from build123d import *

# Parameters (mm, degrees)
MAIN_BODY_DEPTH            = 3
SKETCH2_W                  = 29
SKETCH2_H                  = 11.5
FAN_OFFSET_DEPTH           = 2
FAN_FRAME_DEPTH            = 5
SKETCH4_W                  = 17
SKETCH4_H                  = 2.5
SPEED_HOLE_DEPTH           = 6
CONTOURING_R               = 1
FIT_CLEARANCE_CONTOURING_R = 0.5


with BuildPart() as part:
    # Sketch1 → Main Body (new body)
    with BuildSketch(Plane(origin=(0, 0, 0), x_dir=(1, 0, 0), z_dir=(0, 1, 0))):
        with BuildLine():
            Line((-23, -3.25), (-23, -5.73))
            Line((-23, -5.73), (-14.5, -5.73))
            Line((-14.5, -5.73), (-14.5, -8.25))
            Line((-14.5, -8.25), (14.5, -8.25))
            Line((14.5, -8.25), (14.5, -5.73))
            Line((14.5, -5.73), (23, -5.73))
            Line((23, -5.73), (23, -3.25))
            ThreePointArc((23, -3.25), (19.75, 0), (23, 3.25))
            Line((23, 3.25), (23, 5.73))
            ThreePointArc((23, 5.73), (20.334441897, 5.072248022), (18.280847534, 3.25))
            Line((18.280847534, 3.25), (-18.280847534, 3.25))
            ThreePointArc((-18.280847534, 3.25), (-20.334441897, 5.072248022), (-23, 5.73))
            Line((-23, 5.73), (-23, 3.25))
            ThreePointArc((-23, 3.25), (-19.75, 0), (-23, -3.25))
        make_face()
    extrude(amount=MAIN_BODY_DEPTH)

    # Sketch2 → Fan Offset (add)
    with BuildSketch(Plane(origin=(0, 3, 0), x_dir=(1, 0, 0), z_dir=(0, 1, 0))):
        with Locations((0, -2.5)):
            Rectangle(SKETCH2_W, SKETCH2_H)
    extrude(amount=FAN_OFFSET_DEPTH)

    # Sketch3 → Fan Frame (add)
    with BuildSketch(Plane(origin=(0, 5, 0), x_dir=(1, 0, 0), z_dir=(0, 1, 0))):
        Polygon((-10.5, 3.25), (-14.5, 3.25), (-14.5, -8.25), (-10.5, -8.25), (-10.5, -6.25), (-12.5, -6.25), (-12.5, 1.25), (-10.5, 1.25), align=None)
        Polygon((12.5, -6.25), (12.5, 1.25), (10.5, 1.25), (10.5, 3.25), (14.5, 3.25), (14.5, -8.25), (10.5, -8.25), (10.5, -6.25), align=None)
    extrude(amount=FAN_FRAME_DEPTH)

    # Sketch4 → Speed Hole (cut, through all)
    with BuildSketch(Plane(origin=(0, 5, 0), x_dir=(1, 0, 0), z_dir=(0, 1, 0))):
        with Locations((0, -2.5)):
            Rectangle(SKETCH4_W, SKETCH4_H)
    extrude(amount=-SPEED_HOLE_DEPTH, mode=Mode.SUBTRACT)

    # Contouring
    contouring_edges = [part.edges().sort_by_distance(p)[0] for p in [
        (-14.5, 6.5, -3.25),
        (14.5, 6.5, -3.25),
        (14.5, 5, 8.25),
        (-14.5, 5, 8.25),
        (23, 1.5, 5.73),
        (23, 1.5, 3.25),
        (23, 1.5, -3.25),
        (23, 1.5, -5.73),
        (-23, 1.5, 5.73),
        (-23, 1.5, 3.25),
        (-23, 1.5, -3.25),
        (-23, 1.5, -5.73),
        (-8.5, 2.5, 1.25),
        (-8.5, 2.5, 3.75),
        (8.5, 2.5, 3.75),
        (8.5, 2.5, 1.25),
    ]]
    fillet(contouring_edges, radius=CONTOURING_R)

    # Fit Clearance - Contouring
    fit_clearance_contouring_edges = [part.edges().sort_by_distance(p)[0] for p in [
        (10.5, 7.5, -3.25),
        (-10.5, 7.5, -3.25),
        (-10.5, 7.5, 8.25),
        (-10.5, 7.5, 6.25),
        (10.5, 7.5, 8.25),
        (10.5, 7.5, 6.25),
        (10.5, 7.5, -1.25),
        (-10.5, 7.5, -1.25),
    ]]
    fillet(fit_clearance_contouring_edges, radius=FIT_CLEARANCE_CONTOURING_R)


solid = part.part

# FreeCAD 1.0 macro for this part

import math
import FreeCAD as App
import Part
import Sketcher

V = App.Vector
Q = App.Units.Quantity


def edges_at(feature, points):
    """Names of the edges that pass closest to the given points."""
    edges = feature.Shape.Edges
    near = lambda p: min(range(len(edges)), key=lambda i: edges[i].distToShape(Part.Vertex(*p))[0])
    return sorted({f"Edge{near(p) + 1}" for p in points})

doc = App.newDocument("Part")
params = doc.addObject("Spreadsheet::Sheet", "Params")
for row, (alias, value) in enumerate([
    ("sketch1_width", "29 mm"),
    ("sketch1_radius", "3.25 mm"),
    ("sketch1_radius2", "5.73 mm"),
    ("sketch1_width2", "8.5 mm"),
    ("pad1_length", "3 mm"),
    ("sketch2_width", "29 mm"),
    ("sketch2_height", "11.5 mm"),
    ("pad2_length", "2 mm"),
    ("sketch3_width", "4 mm"),
    ("sketch3_width2", "2 mm"),
    ("sketch3_height", "11.5 mm"),
    ("pad3_length", "5 mm"),
    ("sketch4_width", "17 mm"),
    ("sketch4_height", "2.5 mm"),
    ("fillet_radius", "1 mm"),
    ("fillet2_radius", "0.5 mm"),
], start=1):
    params.set(f"A{row}", alias)
    params.set(f"B{row}", "=" + value)
    params.setAlias(f"B{row}", alias)

body = doc.addObject("PartDesign::Body", "Body")

# Sketch on XZ plane
sketch1 = body.newObject("Sketcher::SketchObject", "Sketch")
sketch1.AttachmentSupport = (doc.getObject("XZ_Plane"), [""])
sketch1.MapMode = "FlatFace"
sketch1.addGeometry([
    Part.LineSegment(V(-23, 3.2, 0), V(-23, 5.7, 0)),  # 0
    Part.LineSegment(V(-23, 5.7, 0), V(-14.5, 5.7, 0)),  # 1
    Part.LineSegment(V(-14.5, 5.7, 0), V(-14.5, 8.2, 0)),  # 2
    Part.LineSegment(V(-14.5, 8.2, 0), V(14.5, 8.2, 0)),  # 3
    Part.LineSegment(V(14.5, 8.2, 0), V(14.5, 5.7, 0)),  # 4
    Part.LineSegment(V(14.5, 5.7, 0), V(23, 5.7, 0)),  # 5
    Part.LineSegment(V(23, 5.7, 0), V(23, 3.2, 0)),  # 6
    Part.ArcOfCircle(Part.Circle(V(23, 0, 0), V(0, 0, 1), 3.2), math.radians(90), math.radians(270)),  # 7
    Part.LineSegment(V(23, -3.2, 0), V(23, -5.7, 0)),  # 8
    Part.ArcOfCircle(Part.Circle(V(23, 0, 0), V(0, 0, 1), 5.7), math.radians(-145), math.radians(-90)),  # 9
    Part.LineSegment(V(18.3, -3.2, 0), V(-18.3, -3.2, 0)),  # 10
    Part.ArcOfCircle(Part.Circle(V(-23, 0, 0), V(0, 0, 1), 5.7), math.radians(-90), math.radians(-35)),  # 11
    Part.LineSegment(V(-23, -5.7, 0), V(-23, -3.2, 0)),  # 12
    Part.ArcOfCircle(Part.Circle(V(-23, 0, 0), V(0, 0, 1), 3.2), math.radians(-90), math.radians(90)),  # 13
], False)
sketch1.addConstraint([
    Sketcher.Constraint("Coincident", 0, 2, 1, 1),
    Sketcher.Constraint("Coincident", 1, 2, 2, 1),
    Sketcher.Constraint("Coincident", 2, 2, 3, 1),
    Sketcher.Constraint("Coincident", 3, 2, 4, 1),
    Sketcher.Constraint("Coincident", 4, 2, 5, 1),
    Sketcher.Constraint("Coincident", 5, 2, 6, 1),
    Sketcher.Constraint("Coincident", 6, 2, 7, 1),
    Sketcher.Constraint("Coincident", 7, 2, 8, 1),
    Sketcher.Constraint("Coincident", 8, 2, 9, 2),
    Sketcher.Constraint("Coincident", 9, 1, 10, 1),
    Sketcher.Constraint("Coincident", 10, 2, 11, 2),
    Sketcher.Constraint("Coincident", 11, 1, 12, 1),
    Sketcher.Constraint("Coincident", 12, 2, 13, 1),
    Sketcher.Constraint("Coincident", 13, 2, 0, 1),
    Sketcher.Constraint("Vertical", 0),
    Sketcher.Constraint("Horizontal", 1),
    Sketcher.Constraint("Vertical", 2),
    Sketcher.Constraint("Horizontal", 3),
    Sketcher.Constraint("Vertical", 4),
    Sketcher.Constraint("Horizontal", 5),
    Sketcher.Constraint("Vertical", 6),
    Sketcher.Constraint("Vertical", 8),
    Sketcher.Constraint("Horizontal", 10),
    Sketcher.Constraint("Vertical", 12),
    Sketcher.Constraint("Coincident", 9, 3, 7, 3),
    Sketcher.Constraint("Coincident", 13, 3, 11, 3),
    Sketcher.Constraint("Equal", 9, 11),
    Sketcher.Constraint("Equal", 7, 13),
    Sketcher.Constraint("Symmetric", 7, 3, 11, 3, -1, 1),
    Sketcher.Constraint("Symmetric", 0, 2, 8, 2, -1, 1),
    Sketcher.Constraint("Symmetric", 5, 2, 11, 1, -1, 1),
    Sketcher.Constraint("Symmetric", 1, 2, 4, 2, -2),
    Sketcher.Constraint("Horizontal", 7, 2, 9, 1),
    Sketcher.Constraint("Vertical", 13, 3, 0, 2),
    Sketcher.Constraint("Vertical", 9, 3, 5, 2),
    Sketcher.Constraint("DistanceX", 3, 1, 3, 2, Q("29 mm")),
    Sketcher.Constraint("Radius", 7, Q("3.25 mm")),
    Sketcher.Constraint("Radius", 9, Q("5.73 mm")),
    Sketcher.Constraint("DistanceX", 1, 1, 1, 2, Q("8.5 mm")),
    Sketcher.Constraint("DistanceY", 6, 2, 3, 2, Q("5 mm")),
])
sketch1.setExpression("Constraints[35]", "Params.sketch1_width")
sketch1.setExpression("Constraints[36]", "Params.sketch1_radius")
sketch1.setExpression("Constraints[37]", "Params.sketch1_radius2")
sketch1.setExpression("Constraints[38]", "Params.sketch1_width2")
pad1 = body.newObject("PartDesign::Pad", "Pad")
pad1.Profile = sketch1
pad1.setExpression("Length", "Params.pad1_length")
pad1.Reversed = True

# Sketch on XZ plane
sketch2 = body.newObject("Sketcher::SketchObject", "Sketch001")
sketch2.AttachmentSupport = (doc.getObject("XZ_Plane"), [""])
sketch2.MapMode = "FlatFace"
sketch2.AttachmentOffset = App.Placement(V(0, 0, -3), App.Rotation())
sketch2.addGeometry([
    Part.LineSegment(V(-14, -3, 0), V(-14, 8, 0)),
    Part.LineSegment(V(-14, 8, 0), V(14, 8, 0)),
    Part.LineSegment(V(14, 8, 0), V(14, -3, 0)),
    Part.LineSegment(V(14, -3, 0), V(-14, -3, 0)),
], False)
sketch2.addConstraint([
    Sketcher.Constraint("Coincident", 0, 2, 1, 1),
    Sketcher.Constraint("Coincident", 1, 2, 2, 1),
    Sketcher.Constraint("Coincident", 2, 2, 3, 1),
    Sketcher.Constraint("Coincident", 3, 2, 0, 1),
    Sketcher.Constraint("Vertical", 0),
    Sketcher.Constraint("Horizontal", 1),
    Sketcher.Constraint("Vertical", 2),
    Sketcher.Constraint("Horizontal", 3),
    Sketcher.Constraint("DistanceX", 1, 1, 1, 2, Q("29 mm")),
    Sketcher.Constraint("DistanceY", 0, 1, 0, 2, Q("11.5 mm")),
    Sketcher.Constraint("DistanceX", 0, 2, -1, 1, Q("14.5 mm")),
    Sketcher.Constraint("DistanceY", -1, 1, 0, 2, Q("8.25 mm")),
])
sketch2.setExpression("Constraints[8]", "Params.sketch2_width")
sketch2.setExpression("Constraints[9]", "Params.sketch2_height")
pad2 = body.newObject("PartDesign::Pad", "Pad001")
pad2.Profile = sketch2
pad2.setExpression("Length", "Params.pad2_length")
pad2.Reversed = True

# Sketch on XZ plane
sketch3 = body.newObject("Sketcher::SketchObject", "Sketch002")
sketch3.AttachmentSupport = (doc.getObject("XZ_Plane"), [""])
sketch3.MapMode = "FlatFace"
sketch3.AttachmentOffset = App.Placement(V(0, 0, -5), App.Rotation())
sketch3.addGeometry([
    Part.LineSegment(V(-10.5, -3.2, 0), V(-14.5, -3.2, 0)),  # 0
    Part.LineSegment(V(-14.5, -3.2, 0), V(-14.5, 8.2, 0)),  # 1
    Part.LineSegment(V(-14.5, 8.2, 0), V(-10.5, 8.2, 0)),  # 2
    Part.LineSegment(V(-10.5, 8.2, 0), V(-10.5, 6.2, 0)),  # 3
    Part.LineSegment(V(-10.5, 6.2, 0), V(-12.5, 6.2, 0)),  # 4
    Part.LineSegment(V(-12.5, 6.2, 0), V(-12.5, -1.2, 0)),  # 5
    Part.LineSegment(V(-12.5, -1.2, 0), V(-10.5, -1.2, 0)),  # 6
    Part.LineSegment(V(-10.5, -1.2, 0), V(-10.5, -3.2, 0)),  # 7
    Part.LineSegment(V(12.5, -1.2, 0), V(12.5, 6.2, 0)),  # 8
    Part.LineSegment(V(12.5, 6.2, 0), V(10.5, 6.2, 0)),  # 9
    Part.LineSegment(V(10.5, 6.2, 0), V(10.5, 8.2, 0)),  # 10
    Part.LineSegment(V(10.5, 8.2, 0), V(14.5, 8.2, 0)),  # 11
    Part.LineSegment(V(14.5, 8.2, 0), V(14.5, -3.2, 0)),  # 12
    Part.LineSegment(V(14.5, -3.2, 0), V(10.5, -3.2, 0)),  # 13
    Part.LineSegment(V(10.5, -3.2, 0), V(10.5, -1.2, 0)),  # 14
    Part.LineSegment(V(10.5, -1.2, 0), V(12.5, -1.2, 0)),  # 15
], False)
sketch3.addConstraint([
    Sketcher.Constraint("Coincident", 0, 2, 1, 1),
    Sketcher.Constraint("Coincident", 1, 2, 2, 1),
    Sketcher.Constraint("Coincident", 2, 2, 3, 1),
    Sketcher.Constraint("Coincident", 3, 2, 4, 1),
    Sketcher.Constraint("Coincident", 4, 2, 5, 1),
    Sketcher.Constraint("Coincident", 5, 2, 6, 1),
    Sketcher.Constraint("Coincident", 6, 2, 7, 1),
    Sketcher.Constraint("Coincident", 7, 2, 0, 1),
    Sketcher.Constraint("Coincident", 8, 2, 9, 1),
    Sketcher.Constraint("Coincident", 9, 2, 10, 1),
    Sketcher.Constraint("Coincident", 10, 2, 11, 1),
    Sketcher.Constraint("Coincident", 11, 2, 12, 1),
    Sketcher.Constraint("Coincident", 12, 2, 13, 1),
    Sketcher.Constraint("Coincident", 13, 2, 14, 1),
    Sketcher.Constraint("Coincident", 14, 2, 15, 1),
    Sketcher.Constraint("Coincident", 15, 2, 8, 1),
    Sketcher.Constraint("Horizontal", 0),
    Sketcher.Constraint("Vertical", 1),
    Sketcher.Constraint("Horizontal", 2),
    Sketcher.Constraint("Vertical", 3),
    Sketcher.Constraint("Horizontal", 4),
    Sketcher.Constraint("Vertical", 5),
    Sketcher.Constraint("Horizontal", 6),
    Sketcher.Constraint("Vertical", 7),
    Sketcher.Constraint("Vertical", 8),
    Sketcher.Constraint("Horizontal", 9),
    Sketcher.Constraint("Vertical", 10),
    Sketcher.Constraint("Horizontal", 11),
    Sketcher.Constraint("Vertical", 12),
    Sketcher.Constraint("Horizontal", 13),
    Sketcher.Constraint("Vertical", 14),
    Sketcher.Constraint("Horizontal", 15),
    Sketcher.Constraint("Symmetric", 4, 2, 8, 2, -2),
    Sketcher.Constraint("Symmetric", 2, 2, 10, 2, -2),
    Sketcher.Constraint("Symmetric", 0, 2, 12, 2, -2),
    Sketcher.Constraint("Symmetric", 6, 2, 14, 2, -2),
    Sketcher.Constraint("Vertical", 3, 2, 6, 2),
    Sketcher.Constraint("Equal", 15, 3),
    Sketcher.Constraint("Equal", 3, 7),
    Sketcher.Constraint("DistanceX", 0, 2, 0, 1, Q("4 mm")),
    Sketcher.Constraint("DistanceX", 4, 2, 4, 1, Q("2 mm")),
    Sketcher.Constraint("DistanceY", 1, 1, 1, 2, Q("11.5 mm")),
    Sketcher.Constraint("DistanceX", 3, 2, 8, 2, Q("23 mm")),
    Sketcher.Constraint("DistanceY", 0, 2, -1, 1, Q("3.25 mm")),
])
sketch3.setExpression("Constraints[39]", "Params.sketch3_width")
sketch3.setExpression("Constraints[40]", "Params.sketch3_width2")
sketch3.setExpression("Constraints[41]", "Params.sketch3_height")
pad3 = body.newObject("PartDesign::Pad", "Pad002")
pad3.Profile = sketch3
pad3.setExpression("Length", "Params.pad3_length")
pad3.Reversed = True

# Sketch on XZ plane
sketch4 = body.newObject("Sketcher::SketchObject", "Sketch003")
sketch4.AttachmentSupport = (doc.getObject("XZ_Plane"), [""])
sketch4.MapMode = "FlatFace"
sketch4.AttachmentOffset = App.Placement(V(0, 0, -5), App.Rotation())
sketch4.addGeometry([
    Part.LineSegment(V(-8.5, 1.2, 0), V(-8.5, 3.8, 0)),
    Part.LineSegment(V(-8.5, 3.8, 0), V(8.5, 3.8, 0)),
    Part.LineSegment(V(8.5, 3.8, 0), V(8.5, 1.2, 0)),
    Part.LineSegment(V(8.5, 1.2, 0), V(-8.5, 1.2, 0)),
], False)
sketch4.addConstraint([
    Sketcher.Constraint("Coincident", 0, 2, 1, 1),
    Sketcher.Constraint("Coincident", 1, 2, 2, 1),
    Sketcher.Constraint("Coincident", 2, 2, 3, 1),
    Sketcher.Constraint("Coincident", 3, 2, 0, 1),
    Sketcher.Constraint("Vertical", 0),
    Sketcher.Constraint("Horizontal", 1),
    Sketcher.Constraint("Vertical", 2),
    Sketcher.Constraint("Horizontal", 3),
    Sketcher.Constraint("DistanceX", 1, 1, 1, 2, Q("17 mm")),
    Sketcher.Constraint("DistanceY", 0, 1, 0, 2, Q("2.5 mm")),
    Sketcher.Constraint("DistanceX", 0, 2, -1, 1, Q("8.5 mm")),
    Sketcher.Constraint("DistanceY", -1, 1, 0, 2, Q("3.75 mm")),
])
sketch4.setExpression("Constraints[8]", "Params.sketch4_width")
sketch4.setExpression("Constraints[9]", "Params.sketch4_height")
pocket1 = body.newObject("PartDesign::Pocket", "Pocket")
pocket1.Profile = sketch4
pocket1.Type = "ThroughAll"
pocket1.Reversed = True
doc.recompute()

fillet = body.newObject("PartDesign::Fillet", "Fillet")
fillet.Base = (pocket1, edges_at(pocket1, [
    (-14.5, 6.5, -3.25),
    (14.5, 6.5, -3.25),
    (14.5, 5, 8.25),
    (-14.5, 5, 8.25),
    (23, 1.5, 5.73),
    (23, 1.5, 3.25),
    (23, 1.5, -3.25),
    (23, 1.5, -5.73),
    (-23, 1.5, 5.73),
    (-23, 1.5, 3.25),
    (-23, 1.5, -3.25),
    (-23, 1.5, -5.73),
    (-8.5, 2.5, 1.25),
    (-8.5, 2.5, 3.75),
    (8.5, 2.5, 3.75),
    (8.5, 2.5, 1.25),
]))
fillet.setExpression("Radius", "Params.fillet_radius")
doc.recompute()

fillet2 = body.newObject("PartDesign::Fillet", "Fillet001")
fillet2.Base = (fillet, edges_at(fillet, [
    (10.5, 7.5, -3.25),
    (-10.5, 7.5, -3.25),
    (-10.5, 7.5, 8.25),
    (-10.5, 7.5, 6.25),
    (10.5, 7.5, 8.25),
    (10.5, 7.5, 6.25),
    (10.5, 7.5, -1.25),
    (-10.5, 7.5, -1.25),
]))
fillet2.setExpression("Radius", "Params.fillet2_radius")

doc.recompute()
